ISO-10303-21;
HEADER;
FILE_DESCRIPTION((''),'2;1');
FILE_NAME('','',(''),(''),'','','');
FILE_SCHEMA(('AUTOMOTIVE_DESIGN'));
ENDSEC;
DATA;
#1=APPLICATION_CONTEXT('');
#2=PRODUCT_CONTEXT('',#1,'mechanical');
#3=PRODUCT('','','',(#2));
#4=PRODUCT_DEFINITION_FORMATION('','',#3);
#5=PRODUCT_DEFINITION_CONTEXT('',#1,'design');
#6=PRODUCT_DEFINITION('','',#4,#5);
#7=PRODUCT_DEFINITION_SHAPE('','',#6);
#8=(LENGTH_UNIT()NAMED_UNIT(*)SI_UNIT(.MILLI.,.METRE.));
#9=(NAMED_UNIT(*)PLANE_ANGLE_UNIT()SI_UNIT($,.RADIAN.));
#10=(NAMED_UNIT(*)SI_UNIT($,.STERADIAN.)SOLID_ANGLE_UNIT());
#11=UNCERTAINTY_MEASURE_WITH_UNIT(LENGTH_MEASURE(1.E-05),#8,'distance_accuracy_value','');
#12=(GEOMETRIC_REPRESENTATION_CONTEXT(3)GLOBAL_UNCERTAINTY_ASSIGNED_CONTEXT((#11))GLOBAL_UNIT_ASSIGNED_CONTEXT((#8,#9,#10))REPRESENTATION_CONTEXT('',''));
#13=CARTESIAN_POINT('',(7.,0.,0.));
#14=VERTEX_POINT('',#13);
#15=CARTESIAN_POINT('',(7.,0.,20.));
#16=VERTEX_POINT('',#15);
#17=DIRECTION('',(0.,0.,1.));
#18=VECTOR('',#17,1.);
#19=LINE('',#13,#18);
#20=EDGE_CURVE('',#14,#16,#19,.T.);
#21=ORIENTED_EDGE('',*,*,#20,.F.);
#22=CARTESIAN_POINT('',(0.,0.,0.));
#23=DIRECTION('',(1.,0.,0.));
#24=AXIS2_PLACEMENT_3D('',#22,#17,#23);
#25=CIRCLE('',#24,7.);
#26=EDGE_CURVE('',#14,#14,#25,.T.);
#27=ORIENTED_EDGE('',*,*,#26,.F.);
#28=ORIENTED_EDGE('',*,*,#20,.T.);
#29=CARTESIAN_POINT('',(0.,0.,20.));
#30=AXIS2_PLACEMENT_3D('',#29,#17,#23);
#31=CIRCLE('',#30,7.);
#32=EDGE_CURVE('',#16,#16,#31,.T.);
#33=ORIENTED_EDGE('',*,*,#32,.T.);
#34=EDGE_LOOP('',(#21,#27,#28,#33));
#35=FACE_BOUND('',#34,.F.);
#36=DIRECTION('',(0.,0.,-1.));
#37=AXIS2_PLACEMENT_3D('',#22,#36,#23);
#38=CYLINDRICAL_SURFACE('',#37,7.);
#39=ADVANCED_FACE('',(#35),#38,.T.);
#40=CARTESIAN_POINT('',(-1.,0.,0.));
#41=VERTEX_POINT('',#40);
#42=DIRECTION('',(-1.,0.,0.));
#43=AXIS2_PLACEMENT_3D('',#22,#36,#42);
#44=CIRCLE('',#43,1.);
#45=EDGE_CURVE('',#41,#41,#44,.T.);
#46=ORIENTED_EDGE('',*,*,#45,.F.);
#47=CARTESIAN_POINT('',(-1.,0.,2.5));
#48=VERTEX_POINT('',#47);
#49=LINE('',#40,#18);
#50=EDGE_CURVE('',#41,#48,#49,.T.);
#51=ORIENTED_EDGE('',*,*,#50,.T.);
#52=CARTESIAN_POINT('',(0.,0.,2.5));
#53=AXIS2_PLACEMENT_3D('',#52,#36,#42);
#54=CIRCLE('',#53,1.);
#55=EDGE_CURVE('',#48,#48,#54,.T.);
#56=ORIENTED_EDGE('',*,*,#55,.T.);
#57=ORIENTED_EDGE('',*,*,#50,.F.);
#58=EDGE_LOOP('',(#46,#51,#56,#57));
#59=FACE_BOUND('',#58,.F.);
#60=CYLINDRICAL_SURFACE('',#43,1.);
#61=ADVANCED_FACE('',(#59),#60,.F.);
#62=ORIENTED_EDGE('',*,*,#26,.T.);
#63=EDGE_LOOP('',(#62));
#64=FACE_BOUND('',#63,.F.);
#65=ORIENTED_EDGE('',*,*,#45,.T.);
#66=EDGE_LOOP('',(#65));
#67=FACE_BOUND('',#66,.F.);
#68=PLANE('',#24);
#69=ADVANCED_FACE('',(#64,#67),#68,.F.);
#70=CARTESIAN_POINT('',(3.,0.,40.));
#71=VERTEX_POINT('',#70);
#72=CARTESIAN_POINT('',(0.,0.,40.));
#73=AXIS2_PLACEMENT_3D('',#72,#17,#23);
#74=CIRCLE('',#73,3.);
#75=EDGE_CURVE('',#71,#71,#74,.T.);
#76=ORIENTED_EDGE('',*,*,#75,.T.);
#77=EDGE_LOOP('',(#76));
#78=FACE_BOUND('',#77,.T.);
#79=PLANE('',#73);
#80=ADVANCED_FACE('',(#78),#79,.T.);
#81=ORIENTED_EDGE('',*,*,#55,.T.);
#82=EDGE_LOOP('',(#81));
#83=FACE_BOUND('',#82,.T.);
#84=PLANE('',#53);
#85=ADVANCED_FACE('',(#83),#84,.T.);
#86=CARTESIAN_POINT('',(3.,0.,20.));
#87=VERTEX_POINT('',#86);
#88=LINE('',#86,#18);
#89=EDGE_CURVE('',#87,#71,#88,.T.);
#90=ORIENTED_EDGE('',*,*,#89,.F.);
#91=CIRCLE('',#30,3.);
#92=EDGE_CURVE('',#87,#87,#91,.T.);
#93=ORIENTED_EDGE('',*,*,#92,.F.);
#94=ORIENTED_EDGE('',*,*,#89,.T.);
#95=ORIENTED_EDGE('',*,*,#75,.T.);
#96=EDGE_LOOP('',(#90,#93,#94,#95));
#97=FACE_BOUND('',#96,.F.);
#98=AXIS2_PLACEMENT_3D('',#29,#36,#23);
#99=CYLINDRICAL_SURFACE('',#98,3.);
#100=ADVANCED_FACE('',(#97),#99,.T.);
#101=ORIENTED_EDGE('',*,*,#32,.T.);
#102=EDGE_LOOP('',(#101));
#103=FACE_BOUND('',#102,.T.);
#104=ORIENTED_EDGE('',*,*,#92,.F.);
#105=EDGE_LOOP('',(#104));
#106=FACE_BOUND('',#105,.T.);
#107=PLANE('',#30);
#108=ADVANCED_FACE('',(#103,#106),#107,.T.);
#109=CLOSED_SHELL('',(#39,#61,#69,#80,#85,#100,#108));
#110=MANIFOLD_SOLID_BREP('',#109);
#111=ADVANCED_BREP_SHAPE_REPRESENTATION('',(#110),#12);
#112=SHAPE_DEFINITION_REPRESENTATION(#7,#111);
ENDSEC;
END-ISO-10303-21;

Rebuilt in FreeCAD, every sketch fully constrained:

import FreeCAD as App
import Part
import Sketcher
from FreeCAD import Vector

doc = App.newDocument("Part")
params = doc.addObject("Spreadsheet::Sheet", "Params")
for row, (alias, value) in enumerate([
    ("sketch1_diameter", "14 mm"),
    ("pad1_length", "20 mm"),
    ("sketch2_diameter", "2 mm"),
    ("pocket1_length", "2.5 mm"),
    ("sketch3_diameter", "6 mm"),
    ("pad2_length", "20 mm"),
], start=1):
    params.set(f"A{row}", alias)
    params.set(f"B{row}", "=" + value)
    params.setAlias(f"B{row}", alias)

body = doc.addObject("PartDesign::Body", "Body")

sketch1 = body.newObject("Sketcher::SketchObject", "Sketch")
sketch1.AttachmentSupport = (doc.getObject("XY_Plane"), [""])
sketch1.MapMode = "FlatFace"
sketch1.addGeometry(Part.Circle(Vector(0, 0, 0), Vector(0, 0, 1), 7), False)
sketch1.addConstraint(Sketcher.Constraint("Coincident", 0, 3, -1, 1))
sketch1.addConstraint(Sketcher.Constraint("Diameter", 0, 14.0))
sketch1.setExpression("Constraints[1]", "Params.sketch1_diameter")
pad1 = body.newObject("PartDesign::Pad", "Pad")
pad1.Profile = sketch1
pad1.setExpression("Length", "Params.pad1_length")

sketch2 = body.newObject("Sketcher::SketchObject", "Sketch001")
sketch2.AttachmentSupport = (doc.getObject("XY_Plane"), [""])
sketch2.MapMode = "FlatFace"
sketch2.addGeometry(Part.Circle(Vector(0, 0, 0), Vector(0, 0, 1), 1), False)
sketch2.addConstraint(Sketcher.Constraint("Coincident", 0, 3, -1, 1))
sketch2.addConstraint(Sketcher.Constraint("Diameter", 0, 2.0))
sketch2.setExpression("Constraints[1]", "Params.sketch2_diameter")
pocket1 = body.newObject("PartDesign::Pocket", "Pocket")
pocket1.Profile = sketch2
pocket1.setExpression("Length", "Params.pocket1_length")
pocket1.Reversed = True

sketch3 = body.newObject("Sketcher::SketchObject", "Sketch002")
sketch3.AttachmentSupport = (doc.getObject("XY_Plane"), [""])
sketch3.MapMode = "FlatFace"
sketch3.AttachmentOffset = App.Placement(Vector(0, 0, 20), App.Rotation())
sketch3.addGeometry(Part.Circle(Vector(0, 0, 0), Vector(0, 0, 1), 3), False)
sketch3.addConstraint(Sketcher.Constraint("Coincident", 0, 3, -1, 1))
sketch3.addConstraint(Sketcher.Constraint("Diameter", 0, 6.0))
sketch3.setExpression("Constraints[1]", "Params.sketch3_diameter")
pad2 = body.newObject("PartDesign::Pad", "Pad001")
pad2.Profile = sketch3
pad2.setExpression("Length", "Params.pad2_length")

doc.recompute()
